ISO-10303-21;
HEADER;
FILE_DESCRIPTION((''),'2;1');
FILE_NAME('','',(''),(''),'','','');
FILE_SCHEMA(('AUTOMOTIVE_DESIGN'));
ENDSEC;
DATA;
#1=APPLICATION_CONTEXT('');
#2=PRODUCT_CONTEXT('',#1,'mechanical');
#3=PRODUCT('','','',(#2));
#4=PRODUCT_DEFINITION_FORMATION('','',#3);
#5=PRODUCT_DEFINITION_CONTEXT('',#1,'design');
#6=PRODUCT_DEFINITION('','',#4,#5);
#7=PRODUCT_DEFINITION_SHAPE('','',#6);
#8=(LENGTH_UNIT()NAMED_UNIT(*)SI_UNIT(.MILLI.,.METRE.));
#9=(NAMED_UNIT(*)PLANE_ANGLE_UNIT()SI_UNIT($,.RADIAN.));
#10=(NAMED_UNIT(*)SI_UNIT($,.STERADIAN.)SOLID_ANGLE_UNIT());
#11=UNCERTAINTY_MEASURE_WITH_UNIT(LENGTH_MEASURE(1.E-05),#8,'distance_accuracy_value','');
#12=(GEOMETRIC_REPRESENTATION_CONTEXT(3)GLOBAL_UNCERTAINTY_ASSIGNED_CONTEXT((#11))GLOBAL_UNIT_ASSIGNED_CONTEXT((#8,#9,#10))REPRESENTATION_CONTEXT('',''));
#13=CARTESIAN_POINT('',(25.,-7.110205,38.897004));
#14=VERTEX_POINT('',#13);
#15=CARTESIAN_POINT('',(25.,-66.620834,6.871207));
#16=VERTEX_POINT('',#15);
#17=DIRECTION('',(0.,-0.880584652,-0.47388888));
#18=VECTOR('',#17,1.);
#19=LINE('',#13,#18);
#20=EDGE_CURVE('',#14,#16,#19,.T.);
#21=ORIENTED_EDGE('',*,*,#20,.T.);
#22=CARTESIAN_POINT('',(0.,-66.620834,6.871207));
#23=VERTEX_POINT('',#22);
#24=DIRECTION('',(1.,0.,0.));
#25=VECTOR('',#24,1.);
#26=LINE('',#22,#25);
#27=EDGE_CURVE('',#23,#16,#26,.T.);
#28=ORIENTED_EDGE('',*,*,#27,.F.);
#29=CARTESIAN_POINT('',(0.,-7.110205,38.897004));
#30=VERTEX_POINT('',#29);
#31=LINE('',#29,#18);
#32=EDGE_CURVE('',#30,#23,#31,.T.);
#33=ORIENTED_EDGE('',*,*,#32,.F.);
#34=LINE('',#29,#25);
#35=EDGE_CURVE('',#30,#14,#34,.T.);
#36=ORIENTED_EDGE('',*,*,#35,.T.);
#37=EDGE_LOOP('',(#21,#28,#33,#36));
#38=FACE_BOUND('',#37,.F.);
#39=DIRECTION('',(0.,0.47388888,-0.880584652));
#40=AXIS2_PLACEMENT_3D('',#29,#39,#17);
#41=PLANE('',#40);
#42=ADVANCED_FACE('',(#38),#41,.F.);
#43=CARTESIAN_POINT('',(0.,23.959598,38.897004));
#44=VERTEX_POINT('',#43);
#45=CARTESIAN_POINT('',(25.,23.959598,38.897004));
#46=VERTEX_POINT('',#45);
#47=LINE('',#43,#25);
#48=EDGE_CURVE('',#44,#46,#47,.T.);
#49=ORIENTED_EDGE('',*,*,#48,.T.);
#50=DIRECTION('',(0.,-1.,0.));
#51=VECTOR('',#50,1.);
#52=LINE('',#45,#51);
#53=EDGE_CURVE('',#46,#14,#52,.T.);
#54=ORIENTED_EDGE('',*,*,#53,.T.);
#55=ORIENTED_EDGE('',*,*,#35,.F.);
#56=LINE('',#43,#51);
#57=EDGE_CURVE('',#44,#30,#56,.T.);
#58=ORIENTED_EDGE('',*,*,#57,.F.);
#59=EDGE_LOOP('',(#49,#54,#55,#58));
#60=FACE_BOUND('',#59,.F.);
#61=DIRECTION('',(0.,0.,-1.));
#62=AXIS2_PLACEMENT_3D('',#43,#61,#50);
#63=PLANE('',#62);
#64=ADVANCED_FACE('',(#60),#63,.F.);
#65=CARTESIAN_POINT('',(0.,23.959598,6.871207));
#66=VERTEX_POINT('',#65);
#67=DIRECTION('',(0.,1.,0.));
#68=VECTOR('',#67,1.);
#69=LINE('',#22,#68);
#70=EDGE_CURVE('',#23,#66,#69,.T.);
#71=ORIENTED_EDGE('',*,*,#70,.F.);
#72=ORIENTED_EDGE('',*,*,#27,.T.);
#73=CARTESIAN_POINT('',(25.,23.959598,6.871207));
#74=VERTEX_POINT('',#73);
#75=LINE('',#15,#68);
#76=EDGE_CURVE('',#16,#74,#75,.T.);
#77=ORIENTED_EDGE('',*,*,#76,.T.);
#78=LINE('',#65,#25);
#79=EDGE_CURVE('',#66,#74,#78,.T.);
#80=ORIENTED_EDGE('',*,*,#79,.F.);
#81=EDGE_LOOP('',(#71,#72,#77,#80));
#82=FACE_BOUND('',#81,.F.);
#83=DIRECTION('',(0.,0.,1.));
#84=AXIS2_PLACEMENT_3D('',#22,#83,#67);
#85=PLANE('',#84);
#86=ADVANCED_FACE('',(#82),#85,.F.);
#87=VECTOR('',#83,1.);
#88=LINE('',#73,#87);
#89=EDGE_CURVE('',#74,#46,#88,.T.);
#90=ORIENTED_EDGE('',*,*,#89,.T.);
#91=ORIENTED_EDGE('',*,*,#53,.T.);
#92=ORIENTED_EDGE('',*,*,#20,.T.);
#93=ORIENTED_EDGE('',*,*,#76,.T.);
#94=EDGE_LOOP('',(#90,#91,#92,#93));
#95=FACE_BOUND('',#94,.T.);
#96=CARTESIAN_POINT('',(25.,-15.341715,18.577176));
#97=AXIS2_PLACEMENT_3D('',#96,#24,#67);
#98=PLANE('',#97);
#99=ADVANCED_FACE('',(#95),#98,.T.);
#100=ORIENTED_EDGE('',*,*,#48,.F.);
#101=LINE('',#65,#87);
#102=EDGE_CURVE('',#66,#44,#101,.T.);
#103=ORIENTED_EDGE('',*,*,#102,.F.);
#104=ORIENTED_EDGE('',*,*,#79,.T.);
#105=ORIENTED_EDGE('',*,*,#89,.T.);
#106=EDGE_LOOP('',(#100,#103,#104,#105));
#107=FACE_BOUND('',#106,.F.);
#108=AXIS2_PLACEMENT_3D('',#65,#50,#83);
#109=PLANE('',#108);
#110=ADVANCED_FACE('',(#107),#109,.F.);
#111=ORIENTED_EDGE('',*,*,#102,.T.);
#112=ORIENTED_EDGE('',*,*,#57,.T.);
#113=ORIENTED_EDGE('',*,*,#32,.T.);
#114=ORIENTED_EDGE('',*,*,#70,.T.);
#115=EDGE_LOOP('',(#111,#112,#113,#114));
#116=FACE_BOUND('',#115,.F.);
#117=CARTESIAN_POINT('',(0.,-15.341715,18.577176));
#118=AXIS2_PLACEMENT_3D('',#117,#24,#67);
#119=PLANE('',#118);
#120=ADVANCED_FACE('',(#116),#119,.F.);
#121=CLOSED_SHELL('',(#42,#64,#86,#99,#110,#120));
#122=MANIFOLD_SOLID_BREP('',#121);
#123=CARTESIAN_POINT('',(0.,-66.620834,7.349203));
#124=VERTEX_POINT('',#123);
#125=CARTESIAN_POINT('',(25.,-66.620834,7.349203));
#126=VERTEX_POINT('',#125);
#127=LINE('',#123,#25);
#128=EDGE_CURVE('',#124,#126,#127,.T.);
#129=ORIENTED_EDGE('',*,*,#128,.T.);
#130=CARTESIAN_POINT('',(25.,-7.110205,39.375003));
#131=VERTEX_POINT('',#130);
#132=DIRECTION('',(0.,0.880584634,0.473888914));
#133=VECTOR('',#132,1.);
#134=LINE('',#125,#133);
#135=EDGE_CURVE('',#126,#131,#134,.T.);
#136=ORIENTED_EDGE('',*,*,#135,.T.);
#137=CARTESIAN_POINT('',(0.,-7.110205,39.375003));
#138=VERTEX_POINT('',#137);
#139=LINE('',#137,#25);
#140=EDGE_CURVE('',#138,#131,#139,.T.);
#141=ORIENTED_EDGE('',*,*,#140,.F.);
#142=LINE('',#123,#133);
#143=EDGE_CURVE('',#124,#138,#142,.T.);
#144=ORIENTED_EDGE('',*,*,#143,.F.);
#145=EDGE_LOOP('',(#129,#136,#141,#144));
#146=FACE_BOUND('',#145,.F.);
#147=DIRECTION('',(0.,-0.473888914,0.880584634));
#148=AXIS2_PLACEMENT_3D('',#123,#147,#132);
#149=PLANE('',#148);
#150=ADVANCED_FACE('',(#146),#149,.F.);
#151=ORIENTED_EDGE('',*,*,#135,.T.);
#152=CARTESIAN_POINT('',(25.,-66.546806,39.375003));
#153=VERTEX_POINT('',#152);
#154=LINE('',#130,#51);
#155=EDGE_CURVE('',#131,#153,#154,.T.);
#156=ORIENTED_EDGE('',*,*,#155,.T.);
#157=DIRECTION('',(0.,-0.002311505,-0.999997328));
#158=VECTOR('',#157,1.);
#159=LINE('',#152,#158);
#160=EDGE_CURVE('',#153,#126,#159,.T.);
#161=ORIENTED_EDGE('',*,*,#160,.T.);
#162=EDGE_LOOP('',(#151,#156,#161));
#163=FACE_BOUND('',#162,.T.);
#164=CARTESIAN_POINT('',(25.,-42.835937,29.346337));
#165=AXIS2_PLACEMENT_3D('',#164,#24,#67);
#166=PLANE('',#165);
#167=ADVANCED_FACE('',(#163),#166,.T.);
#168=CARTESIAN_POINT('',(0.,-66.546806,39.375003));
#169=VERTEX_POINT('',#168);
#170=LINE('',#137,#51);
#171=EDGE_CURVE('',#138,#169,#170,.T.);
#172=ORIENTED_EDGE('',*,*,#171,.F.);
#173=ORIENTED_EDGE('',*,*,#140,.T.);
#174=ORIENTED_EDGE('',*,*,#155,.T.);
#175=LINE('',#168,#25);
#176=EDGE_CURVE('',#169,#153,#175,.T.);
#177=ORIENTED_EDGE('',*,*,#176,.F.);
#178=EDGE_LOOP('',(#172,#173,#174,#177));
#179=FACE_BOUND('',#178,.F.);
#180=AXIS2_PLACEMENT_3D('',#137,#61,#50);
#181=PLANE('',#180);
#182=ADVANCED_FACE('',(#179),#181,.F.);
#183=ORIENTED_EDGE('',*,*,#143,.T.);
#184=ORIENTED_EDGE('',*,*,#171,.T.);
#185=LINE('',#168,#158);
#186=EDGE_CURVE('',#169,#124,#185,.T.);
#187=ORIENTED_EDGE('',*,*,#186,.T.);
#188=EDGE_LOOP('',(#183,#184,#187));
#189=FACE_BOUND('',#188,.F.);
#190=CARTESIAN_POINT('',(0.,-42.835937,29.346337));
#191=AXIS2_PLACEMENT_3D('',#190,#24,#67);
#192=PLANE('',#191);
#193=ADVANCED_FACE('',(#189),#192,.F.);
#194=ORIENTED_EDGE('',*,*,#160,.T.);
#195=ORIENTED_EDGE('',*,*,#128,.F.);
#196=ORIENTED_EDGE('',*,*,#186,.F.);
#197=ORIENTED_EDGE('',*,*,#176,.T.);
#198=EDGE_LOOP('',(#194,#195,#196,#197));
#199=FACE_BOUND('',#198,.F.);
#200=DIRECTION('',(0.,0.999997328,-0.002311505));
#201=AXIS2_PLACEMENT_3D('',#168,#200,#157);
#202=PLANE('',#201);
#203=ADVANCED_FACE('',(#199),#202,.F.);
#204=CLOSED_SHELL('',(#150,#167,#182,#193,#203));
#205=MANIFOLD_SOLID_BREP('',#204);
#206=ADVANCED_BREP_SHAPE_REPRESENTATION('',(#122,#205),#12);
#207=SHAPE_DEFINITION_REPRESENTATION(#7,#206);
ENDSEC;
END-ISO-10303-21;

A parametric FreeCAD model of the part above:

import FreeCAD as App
import Part
import Sketcher
Q = App.Units.Quantity

doc = App.newDocument("Part")
body = doc.addObject("PartDesign::Body", "Body")

sketch1 = body.newObject("Sketcher::SketchObject", "Sketch")
sketch1.AttachmentSupport = (doc.getObject("YZ_Plane"), [""])
sketch1.MapMode = "FlatFace"
sketch1.addGeometry([
    Part.LineSegment(App.Vector(-7, 39, 0), App.Vector(-67, 39, 0)),
    Part.LineSegment(App.Vector(-67, 39, 0), App.Vector(-67, 7, 0)),
    Part.LineSegment(App.Vector(-67, 7, 0), App.Vector(-7, 39, 0)),
], False)
sketch1.addConstraint([
    Sketcher.Constraint("Coincident", 0, 2, 1, 1),
    Sketcher.Constraint("Coincident", 1, 2, 2, 1),
    Sketcher.Constraint("Coincident", 2, 2, 0, 1),
    Sketcher.Constraint("Horizontal", 0),
    Sketcher.Constraint("DistanceX", 0, 2, 0, 1, Q("59.436601 mm")),
    Sketcher.Constraint("DistanceY", 1, 2, 0, 2, Q("32.0258 mm")),
    Sketcher.Constraint("DistanceX", 1, 2, 2, 2, Q("59.510629 mm")),
    Sketcher.Constraint("DistanceX", 0, 2, -1, 1, Q("66.546806 mm")),
    Sketcher.Constraint("DistanceY", -1, 1, 0, 2, Q("39.375003 mm")),
])
pad1 = body.newObject("PartDesign::Pad", "Pad")
pad1.Profile = sketch1
pad1.Length = 25
body2 = doc.addObject("PartDesign::Body", "Body001")

sketch2 = body2.newObject("Sketcher::SketchObject", "Sketch001")
sketch2.AttachmentSupport = (doc.getObject("YZ_Plane001"), [""])
sketch2.MapMode = "FlatFace"
sketch2.addGeometry([
    Part.LineSegment(App.Vector(-7, 39, 0), App.Vector(-67, 7, 0)),
    Part.LineSegment(App.Vector(-67, 7, 0), App.Vector(24, 7, 0)),
    Part.LineSegment(App.Vector(24, 7, 0), App.Vector(24, 39, 0)),
    Part.LineSegment(App.Vector(24, 39, 0), App.Vector(-7, 39, 0)),
], False)
sketch2.addConstraint([
    Sketcher.Constraint("Coincident", 0, 2, 1, 1),
    Sketcher.Constraint("Coincident", 1, 2, 2, 1),
    Sketcher.Constraint("Coincident", 2, 2, 3, 1),
    Sketcher.Constraint("Coincident", 3, 2, 0, 1),
    Sketcher.Constraint("Horizontal", 1),
    Sketcher.Constraint("Vertical", 2),
    Sketcher.Constraint("Horizontal", 3),
    Sketcher.Constraint("DistanceX", 1, 1, 1, 2, Q("90.580432 mm")),
    Sketcher.Constraint("DistanceX", -1, 1, 1, 2, Q("23.959598 mm")),
    Sketcher.Constraint("DistanceX", 3, 2, 3, 1, Q("31.069803 mm")),
    Sketcher.Constraint("DistanceY", 2, 1, 2, 2, Q("32.025797 mm")),
    Sketcher.Constraint("DistanceY", -1, 1, 0, 2, Q("6.871207 mm")),
])
pad2 = body2.newObject("PartDesign::Pad", "Pad001")
pad2.Profile = sketch2
pad2.Length = 25

doc.recompute()
